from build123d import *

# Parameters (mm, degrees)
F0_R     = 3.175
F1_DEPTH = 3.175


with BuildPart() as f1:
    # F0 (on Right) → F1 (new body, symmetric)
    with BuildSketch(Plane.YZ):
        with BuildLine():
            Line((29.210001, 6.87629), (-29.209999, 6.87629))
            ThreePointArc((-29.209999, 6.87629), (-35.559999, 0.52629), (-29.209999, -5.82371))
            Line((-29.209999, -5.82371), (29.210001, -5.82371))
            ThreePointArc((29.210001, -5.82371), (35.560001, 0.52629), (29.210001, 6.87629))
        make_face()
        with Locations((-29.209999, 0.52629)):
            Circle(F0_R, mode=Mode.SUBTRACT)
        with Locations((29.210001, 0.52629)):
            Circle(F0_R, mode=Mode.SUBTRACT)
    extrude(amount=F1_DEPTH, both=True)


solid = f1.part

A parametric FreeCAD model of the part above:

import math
import FreeCAD as App
import Part
import Sketcher
from FreeCAD import Vector
Q = App.Units.Quantity

doc = App.newDocument("Part")
body = doc.addObject("PartDesign::Body", "Body")

sketch1 = body.newObject("Sketcher::SketchObject", "Sketch")
sketch1.AttachmentSupport = (doc.getObject("YZ_Plane"), [""])
sketch1.MapMode = "FlatFace"
sketch1.addGeometry([
    Part.LineSegment(Vector(29.2, 6.9, 0), Vector(-29.2, 6.9, 0)),
    Part.ArcOfCircle(Part.Circle(Vector(-29.2, 0.5, 0), Vector(0, 0, 1), 6.3), math.radians(90), math.radians(270)),
    Part.LineSegment(Vector(-29.2, -5.8, 0), Vector(29.2, -5.8, 0)),
    Part.ArcOfCircle(Part.Circle(Vector(29.2, 0.5, 0), Vector(0, 0, 1), 6.3), math.radians(-90), math.radians(90)),
    Part.Circle(Vector(-29.2, 0.5, 0), Vector(0, 0, 1), 3.2),
    Part.Circle(Vector(29.2, 0.5, 0), Vector(0, 0, 1), 3.2),
], False)
sketch1.addConstraint([
    Sketcher.Constraint("Tangent", 0, 2, 1, 1),
    Sketcher.Constraint("Tangent", 1, 2, 2, 1),
    Sketcher.Constraint("Tangent", 2, 2, 3, 1),
    Sketcher.Constraint("Tangent", 3, 2, 0, 1),
    Sketcher.Constraint("Horizontal", 0),
    Sketcher.Constraint("Horizontal", 2),
    Sketcher.Constraint("Coincident", 4, 3, 1, 3),
    Sketcher.Constraint("Coincident", 5, 3, 3, 3),
    Sketcher.Constraint("Equal", 4, 5),
    Sketcher.Constraint("Diameter", 4, Q("0.25 in")),
    Sketcher.Constraint("Radius", 1, Q("0.25 in")),
    Sketcher.Constraint("DistanceX", 0, 2, 0, 1, Q("2.3 in")),
    Sketcher.Constraint("DistanceX", 1, 3, -1, 1, Q("1.15 in")),
    Sketcher.Constraint("DistanceY", -1, 1, 1, 3, Q("0.52629 mm")),
])
pad1 = body.newObject("PartDesign::Pad", "Pad")
pad1.Profile = sketch1
pad1.Length = Q("0.25 in")
pad1.Midplane = True

doc.recompute()
